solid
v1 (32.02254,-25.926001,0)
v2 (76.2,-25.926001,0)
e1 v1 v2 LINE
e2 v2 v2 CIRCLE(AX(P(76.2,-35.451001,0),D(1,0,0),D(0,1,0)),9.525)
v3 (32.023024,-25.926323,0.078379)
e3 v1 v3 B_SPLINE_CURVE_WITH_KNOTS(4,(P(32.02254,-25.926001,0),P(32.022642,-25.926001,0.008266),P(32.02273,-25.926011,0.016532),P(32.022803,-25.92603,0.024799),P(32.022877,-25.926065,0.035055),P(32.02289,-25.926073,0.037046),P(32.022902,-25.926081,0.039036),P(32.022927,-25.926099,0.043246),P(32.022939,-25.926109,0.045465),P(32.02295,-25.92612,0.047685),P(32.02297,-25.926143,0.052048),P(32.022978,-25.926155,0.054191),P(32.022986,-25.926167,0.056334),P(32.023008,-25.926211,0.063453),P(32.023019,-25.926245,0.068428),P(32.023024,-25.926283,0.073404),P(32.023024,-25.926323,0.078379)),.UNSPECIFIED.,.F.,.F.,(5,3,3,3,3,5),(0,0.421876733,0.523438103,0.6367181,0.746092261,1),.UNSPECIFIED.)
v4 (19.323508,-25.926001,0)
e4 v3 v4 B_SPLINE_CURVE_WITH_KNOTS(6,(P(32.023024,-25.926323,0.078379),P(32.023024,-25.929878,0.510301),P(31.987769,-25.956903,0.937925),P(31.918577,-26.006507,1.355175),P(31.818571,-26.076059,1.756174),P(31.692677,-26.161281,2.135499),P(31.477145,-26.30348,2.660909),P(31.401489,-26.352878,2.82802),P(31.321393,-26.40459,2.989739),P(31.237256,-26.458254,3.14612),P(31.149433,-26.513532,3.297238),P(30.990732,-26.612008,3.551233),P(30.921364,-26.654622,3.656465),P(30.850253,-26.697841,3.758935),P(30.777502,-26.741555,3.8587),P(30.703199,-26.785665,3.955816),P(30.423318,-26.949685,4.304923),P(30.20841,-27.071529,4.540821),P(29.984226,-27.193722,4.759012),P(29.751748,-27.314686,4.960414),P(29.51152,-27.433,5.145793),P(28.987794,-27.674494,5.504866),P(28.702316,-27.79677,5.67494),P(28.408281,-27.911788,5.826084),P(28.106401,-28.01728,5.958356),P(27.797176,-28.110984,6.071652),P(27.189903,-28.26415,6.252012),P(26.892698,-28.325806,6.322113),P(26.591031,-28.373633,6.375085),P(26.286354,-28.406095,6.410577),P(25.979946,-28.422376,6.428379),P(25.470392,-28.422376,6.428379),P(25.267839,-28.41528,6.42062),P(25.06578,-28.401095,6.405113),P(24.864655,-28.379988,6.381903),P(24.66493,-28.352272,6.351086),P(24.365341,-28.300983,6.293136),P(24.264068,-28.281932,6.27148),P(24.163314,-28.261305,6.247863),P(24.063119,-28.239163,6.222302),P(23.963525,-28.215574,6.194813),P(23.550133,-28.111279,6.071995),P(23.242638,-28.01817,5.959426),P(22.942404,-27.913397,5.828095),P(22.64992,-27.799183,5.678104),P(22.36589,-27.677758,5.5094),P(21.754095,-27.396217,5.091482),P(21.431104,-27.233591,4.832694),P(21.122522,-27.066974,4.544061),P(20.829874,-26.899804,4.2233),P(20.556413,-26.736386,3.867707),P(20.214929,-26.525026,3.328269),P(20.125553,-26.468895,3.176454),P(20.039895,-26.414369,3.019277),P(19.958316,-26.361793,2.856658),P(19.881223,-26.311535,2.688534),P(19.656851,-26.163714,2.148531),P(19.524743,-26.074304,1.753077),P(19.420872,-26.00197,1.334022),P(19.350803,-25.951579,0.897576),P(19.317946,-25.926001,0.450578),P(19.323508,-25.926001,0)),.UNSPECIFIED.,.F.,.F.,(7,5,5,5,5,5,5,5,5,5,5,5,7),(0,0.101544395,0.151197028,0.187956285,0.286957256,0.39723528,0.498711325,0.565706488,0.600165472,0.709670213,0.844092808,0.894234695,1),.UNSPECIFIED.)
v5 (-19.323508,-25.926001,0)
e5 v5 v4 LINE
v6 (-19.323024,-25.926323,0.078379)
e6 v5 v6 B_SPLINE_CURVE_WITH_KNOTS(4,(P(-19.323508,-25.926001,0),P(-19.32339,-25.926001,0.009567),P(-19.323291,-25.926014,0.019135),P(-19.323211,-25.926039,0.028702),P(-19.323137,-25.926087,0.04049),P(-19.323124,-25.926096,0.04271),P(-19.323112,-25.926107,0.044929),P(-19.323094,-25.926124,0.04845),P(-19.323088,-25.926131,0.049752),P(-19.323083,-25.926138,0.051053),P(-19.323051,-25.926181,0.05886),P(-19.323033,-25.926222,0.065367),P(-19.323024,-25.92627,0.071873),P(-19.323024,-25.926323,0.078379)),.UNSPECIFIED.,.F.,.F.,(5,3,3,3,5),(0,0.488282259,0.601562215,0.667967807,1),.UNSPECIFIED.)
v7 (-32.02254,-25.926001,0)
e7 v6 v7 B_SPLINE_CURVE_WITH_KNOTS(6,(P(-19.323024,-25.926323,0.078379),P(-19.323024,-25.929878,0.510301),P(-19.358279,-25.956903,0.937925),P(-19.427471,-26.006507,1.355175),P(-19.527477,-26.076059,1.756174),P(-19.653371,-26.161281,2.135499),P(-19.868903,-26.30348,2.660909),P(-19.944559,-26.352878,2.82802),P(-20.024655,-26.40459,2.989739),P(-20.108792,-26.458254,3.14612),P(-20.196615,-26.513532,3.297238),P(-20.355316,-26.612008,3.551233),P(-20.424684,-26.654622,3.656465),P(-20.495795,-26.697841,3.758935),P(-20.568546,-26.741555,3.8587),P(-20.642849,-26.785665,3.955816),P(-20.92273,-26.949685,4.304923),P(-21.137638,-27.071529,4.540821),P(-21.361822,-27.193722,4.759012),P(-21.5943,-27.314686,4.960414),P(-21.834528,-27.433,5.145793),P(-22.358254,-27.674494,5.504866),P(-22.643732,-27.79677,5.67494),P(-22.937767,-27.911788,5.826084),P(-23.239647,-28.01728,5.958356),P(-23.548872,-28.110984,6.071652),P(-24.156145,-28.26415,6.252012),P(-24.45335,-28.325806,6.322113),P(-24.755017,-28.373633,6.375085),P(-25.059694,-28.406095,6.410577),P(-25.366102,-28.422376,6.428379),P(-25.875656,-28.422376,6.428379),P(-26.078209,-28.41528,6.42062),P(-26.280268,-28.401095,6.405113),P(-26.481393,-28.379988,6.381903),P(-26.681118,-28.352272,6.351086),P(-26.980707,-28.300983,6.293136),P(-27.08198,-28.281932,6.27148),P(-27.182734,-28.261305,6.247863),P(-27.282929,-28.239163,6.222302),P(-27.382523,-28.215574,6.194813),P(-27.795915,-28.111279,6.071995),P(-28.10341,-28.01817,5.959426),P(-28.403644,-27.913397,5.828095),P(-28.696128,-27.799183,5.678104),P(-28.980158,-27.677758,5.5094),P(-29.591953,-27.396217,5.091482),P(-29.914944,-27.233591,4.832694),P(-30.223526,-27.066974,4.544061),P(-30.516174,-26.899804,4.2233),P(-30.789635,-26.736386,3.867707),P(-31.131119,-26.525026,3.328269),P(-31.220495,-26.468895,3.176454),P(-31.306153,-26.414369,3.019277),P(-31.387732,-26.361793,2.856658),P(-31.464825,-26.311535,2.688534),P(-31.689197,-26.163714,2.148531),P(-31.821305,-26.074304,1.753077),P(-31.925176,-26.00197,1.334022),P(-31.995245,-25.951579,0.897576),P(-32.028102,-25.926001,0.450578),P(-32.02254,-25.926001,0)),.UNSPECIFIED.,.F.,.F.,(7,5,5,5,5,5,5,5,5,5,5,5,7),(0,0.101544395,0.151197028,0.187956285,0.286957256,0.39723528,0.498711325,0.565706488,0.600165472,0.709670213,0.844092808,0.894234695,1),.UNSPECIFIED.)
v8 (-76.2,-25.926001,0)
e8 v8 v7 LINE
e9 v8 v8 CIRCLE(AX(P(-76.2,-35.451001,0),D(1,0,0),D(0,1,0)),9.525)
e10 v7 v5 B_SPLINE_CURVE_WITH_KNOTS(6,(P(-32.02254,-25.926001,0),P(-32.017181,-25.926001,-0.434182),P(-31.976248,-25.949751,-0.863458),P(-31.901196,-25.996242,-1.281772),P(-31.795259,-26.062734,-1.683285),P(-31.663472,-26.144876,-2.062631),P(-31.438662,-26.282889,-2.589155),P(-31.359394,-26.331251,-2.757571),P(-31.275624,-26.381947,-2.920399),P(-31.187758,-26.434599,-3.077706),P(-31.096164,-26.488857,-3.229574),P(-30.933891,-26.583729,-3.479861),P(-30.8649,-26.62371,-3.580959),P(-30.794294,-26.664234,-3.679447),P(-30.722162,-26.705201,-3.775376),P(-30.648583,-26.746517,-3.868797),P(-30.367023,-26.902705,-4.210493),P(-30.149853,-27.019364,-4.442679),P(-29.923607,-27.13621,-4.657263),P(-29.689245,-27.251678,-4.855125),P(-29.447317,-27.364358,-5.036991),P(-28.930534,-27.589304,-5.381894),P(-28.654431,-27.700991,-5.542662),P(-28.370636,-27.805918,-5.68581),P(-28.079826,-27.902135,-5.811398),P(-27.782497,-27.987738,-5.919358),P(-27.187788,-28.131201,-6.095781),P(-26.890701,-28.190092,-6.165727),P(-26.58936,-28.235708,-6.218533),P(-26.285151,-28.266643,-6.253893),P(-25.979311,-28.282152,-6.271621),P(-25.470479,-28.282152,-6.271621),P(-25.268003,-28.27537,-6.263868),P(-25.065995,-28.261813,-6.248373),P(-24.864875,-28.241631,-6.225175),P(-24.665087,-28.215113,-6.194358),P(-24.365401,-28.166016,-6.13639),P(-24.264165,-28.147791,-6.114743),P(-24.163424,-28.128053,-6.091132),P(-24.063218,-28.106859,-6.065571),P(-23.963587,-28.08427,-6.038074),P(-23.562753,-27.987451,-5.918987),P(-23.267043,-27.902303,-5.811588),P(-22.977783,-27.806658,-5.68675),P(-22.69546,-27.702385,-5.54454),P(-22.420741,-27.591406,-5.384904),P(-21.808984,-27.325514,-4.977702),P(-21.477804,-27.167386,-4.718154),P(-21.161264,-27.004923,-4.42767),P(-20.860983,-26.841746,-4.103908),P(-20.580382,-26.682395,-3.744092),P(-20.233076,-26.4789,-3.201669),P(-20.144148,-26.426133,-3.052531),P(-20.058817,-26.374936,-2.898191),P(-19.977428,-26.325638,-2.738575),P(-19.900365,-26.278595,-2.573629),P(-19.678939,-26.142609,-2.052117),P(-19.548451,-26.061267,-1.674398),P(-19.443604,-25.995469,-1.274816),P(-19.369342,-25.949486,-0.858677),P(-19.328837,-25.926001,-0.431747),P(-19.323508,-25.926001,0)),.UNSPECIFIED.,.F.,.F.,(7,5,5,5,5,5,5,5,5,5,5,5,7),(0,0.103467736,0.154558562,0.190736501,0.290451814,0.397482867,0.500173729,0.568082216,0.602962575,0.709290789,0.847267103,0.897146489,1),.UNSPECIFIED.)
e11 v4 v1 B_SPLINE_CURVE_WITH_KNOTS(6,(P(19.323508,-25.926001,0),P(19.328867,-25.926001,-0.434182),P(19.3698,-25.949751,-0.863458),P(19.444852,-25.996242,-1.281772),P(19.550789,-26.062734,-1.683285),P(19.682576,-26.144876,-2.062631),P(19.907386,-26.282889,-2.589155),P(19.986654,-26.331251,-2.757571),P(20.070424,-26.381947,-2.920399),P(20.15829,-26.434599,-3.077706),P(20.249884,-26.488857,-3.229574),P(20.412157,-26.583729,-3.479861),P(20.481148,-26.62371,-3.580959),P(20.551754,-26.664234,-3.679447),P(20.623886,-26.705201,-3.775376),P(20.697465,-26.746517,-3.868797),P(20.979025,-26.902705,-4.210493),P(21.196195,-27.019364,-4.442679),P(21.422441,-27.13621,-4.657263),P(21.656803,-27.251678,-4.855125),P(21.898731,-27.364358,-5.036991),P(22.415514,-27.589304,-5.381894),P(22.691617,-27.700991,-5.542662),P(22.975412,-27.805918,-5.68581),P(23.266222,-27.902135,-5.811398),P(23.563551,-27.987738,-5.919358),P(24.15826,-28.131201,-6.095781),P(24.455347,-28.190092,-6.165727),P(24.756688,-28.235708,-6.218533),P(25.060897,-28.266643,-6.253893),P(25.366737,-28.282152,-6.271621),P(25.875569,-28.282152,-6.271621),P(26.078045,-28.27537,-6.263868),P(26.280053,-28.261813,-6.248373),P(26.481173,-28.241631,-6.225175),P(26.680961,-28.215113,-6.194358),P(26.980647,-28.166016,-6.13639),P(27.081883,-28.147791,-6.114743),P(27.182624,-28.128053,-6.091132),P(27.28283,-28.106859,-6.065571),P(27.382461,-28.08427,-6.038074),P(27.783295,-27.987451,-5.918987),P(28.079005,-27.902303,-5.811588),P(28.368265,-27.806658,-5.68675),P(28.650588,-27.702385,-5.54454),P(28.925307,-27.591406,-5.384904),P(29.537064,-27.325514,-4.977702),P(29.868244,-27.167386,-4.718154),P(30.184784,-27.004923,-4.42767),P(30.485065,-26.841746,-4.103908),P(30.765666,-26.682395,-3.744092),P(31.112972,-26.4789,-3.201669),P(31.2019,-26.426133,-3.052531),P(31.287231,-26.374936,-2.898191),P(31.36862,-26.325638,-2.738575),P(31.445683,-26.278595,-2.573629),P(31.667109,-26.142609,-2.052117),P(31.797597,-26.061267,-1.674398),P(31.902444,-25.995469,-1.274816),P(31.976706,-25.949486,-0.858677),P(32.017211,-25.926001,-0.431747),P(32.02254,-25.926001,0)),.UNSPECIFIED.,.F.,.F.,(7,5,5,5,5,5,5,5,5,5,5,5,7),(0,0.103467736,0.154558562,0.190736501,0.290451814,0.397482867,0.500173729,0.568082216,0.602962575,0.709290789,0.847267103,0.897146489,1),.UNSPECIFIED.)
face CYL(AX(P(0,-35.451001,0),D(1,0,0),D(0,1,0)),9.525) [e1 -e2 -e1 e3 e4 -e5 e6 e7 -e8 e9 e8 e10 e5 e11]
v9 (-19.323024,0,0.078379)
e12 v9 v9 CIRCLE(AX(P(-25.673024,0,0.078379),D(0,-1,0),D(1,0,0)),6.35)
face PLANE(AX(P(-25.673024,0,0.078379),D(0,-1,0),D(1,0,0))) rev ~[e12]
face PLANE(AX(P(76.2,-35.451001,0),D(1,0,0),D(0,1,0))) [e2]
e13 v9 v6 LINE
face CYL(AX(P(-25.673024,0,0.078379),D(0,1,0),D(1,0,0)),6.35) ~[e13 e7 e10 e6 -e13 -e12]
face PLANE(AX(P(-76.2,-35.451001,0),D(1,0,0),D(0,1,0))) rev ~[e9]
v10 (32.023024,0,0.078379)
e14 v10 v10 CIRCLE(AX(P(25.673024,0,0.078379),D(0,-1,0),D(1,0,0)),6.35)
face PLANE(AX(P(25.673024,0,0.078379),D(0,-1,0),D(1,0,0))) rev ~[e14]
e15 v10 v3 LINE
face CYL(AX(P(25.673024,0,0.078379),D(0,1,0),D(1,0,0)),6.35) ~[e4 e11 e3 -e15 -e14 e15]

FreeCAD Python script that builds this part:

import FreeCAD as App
import Part
import Sketcher
from FreeCAD import Vector
Q = App.Units.Quantity

doc = App.newDocument("Part")
body = doc.addObject("PartDesign::Body", "Body")

sketch1 = body.newObject("Sketcher::SketchObject", "Sketch")
sketch1.AttachmentSupport = (doc.getObject("YZ_Plane"), [""])
sketch1.MapMode = "FlatFace"
sketch1.addGeometry(Part.Circle(Vector(-35, 0, 0), Vector(0, 0, 1), 10), False)
sketch1.addConstraint([
    Sketcher.Constraint("PointOnObject", 0, 3, -1),
    Sketcher.Constraint("Diameter", 0, Q("0.75 in")),
    Sketcher.Constraint("DistanceX", 0, 3, -1, 1, 35.451001),
])
pad1 = body.newObject("PartDesign::Pad", "Pad")
pad1.Profile = sketch1
pad1.Length = Q("6 in")
pad1.Midplane = True

sketch2 = body.newObject("Sketcher::SketchObject", "Sketch001")
sketch2.AttachmentSupport = (doc.getObject("XZ_Plane"), [""])
sketch2.MapMode = "FlatFace"
sketch2.addGeometry([
    Part.Circle(Vector(-26, 0, 0), Vector(0, 0, 1), 6),
    Part.Circle(Vector(26, 0, 0), Vector(0, 0, 1), 6),
], False)
sketch2.addConstraint([
    Sketcher.Constraint("Equal", 0, 1),
    Sketcher.Constraint("Symmetric", 0, 3, 1, 3, -2),
    Sketcher.Constraint("Diameter", 0, Q("0.5 in")),
    Sketcher.Constraint("DistanceY", -1, 1, 0, 3, 0.078379),
    Sketcher.Constraint("DistanceX", 0, 3, 1, 3, 51.346048),
])
pad2 = body.newObject("PartDesign::Pad", "Pad001")
pad2.Profile = sketch2
pad2.Length = 32.38043

doc.recompute()
